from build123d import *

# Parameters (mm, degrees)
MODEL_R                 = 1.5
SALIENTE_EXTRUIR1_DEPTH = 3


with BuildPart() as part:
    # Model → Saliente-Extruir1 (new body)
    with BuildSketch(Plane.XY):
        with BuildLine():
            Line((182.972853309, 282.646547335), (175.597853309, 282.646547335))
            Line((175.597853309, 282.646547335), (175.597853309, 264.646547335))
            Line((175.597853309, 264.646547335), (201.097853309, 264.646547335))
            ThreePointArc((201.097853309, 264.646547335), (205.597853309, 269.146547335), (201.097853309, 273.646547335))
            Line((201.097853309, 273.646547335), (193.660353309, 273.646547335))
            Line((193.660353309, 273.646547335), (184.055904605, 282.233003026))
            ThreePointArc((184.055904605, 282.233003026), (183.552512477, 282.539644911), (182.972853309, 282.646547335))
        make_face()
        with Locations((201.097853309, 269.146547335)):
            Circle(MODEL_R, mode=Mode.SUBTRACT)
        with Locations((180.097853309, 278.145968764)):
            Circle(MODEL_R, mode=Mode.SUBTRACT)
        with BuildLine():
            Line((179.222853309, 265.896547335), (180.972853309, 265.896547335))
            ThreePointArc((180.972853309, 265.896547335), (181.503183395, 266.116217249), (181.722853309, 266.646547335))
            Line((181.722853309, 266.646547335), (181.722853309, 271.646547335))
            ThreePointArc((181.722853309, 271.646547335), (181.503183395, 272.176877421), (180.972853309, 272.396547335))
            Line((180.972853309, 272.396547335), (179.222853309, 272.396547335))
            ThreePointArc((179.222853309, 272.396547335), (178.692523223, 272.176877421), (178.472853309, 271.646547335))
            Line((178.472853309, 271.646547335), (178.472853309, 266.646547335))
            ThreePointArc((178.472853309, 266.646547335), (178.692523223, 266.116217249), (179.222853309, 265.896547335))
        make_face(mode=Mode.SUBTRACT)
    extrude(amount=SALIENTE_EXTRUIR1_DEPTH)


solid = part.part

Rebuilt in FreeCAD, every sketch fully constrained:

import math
import FreeCAD as App
import Part
import Sketcher

V = App.Vector
Q = App.Units.Quantity

doc = App.newDocument("Part")
body = doc.addObject("PartDesign::Body", "Body")

# Sketch on XY plane
sketch1 = body.newObject("Sketcher::SketchObject", "Sketch")
sketch1.AttachmentSupport = (doc.getObject("XY_Plane"), [""])
sketch1.MapMode = "FlatFace"
sketch1.addGeometry([
    Part.LineSegment(V(182.972853, 282.646547, 0), V(175.597853, 282.646547, 0)),  # 0
    Part.LineSegment(V(175.597853, 282.646547, 0), V(175.597853, 264.646547, 0)),  # 1
    Part.LineSegment(V(175.597853, 264.646547, 0), V(201.097853, 264.646547, 0)),  # 2
    Part.ArcOfCircle(Part.Circle(V(201.097853, 269.146547, 0), V(0, 0, 1), 4.5), math.radians(-90), math.radians(90)),  # 3
    Part.LineSegment(V(201.097853, 273.646547, 0), V(193.660353, 273.646547, 0)),  # 4
    Part.LineSegment(V(193.660353, 273.646547, 0), V(184.055905, 282.233003, 0)),  # 5
    Part.ArcOfCircle(Part.Circle(V(182.972853, 281.021547, 0), V(0, 0, 1), 1.625), math.radians(48.203025), math.radians(90)),  # 6
    Part.LineSegment(V(180.972853, 265.896547, 0), V(179.222853, 265.896547, 0)),  # 7
    Part.ArcOfCircle(Part.Circle(V(179.222853, 266.646547, 0), V(0, 0, 1), 0.75), math.radians(180), math.radians(270)),  # 8
    Part.LineSegment(V(178.472853, 266.646547, 0), V(178.472853, 271.646547, 0)),  # 9
    Part.ArcOfCircle(Part.Circle(V(179.222853, 271.646547, 0), V(0, 0, 1), 0.75), math.radians(90), math.radians(180)),  # 10
    Part.LineSegment(V(179.222853, 272.396547, 0), V(180.972853, 272.396547, 0)),  # 11
    Part.ArcOfCircle(Part.Circle(V(180.972853, 271.646547, 0), V(0, 0, 1), 0.75), math.radians(0), math.radians(90)),  # 12
    Part.LineSegment(V(181.722853, 271.646547, 0), V(181.722853, 266.646547, 0)),  # 13
    Part.ArcOfCircle(Part.Circle(V(180.972853, 266.646547, 0), V(0, 0, 1), 0.75), math.radians(-90), math.radians(0)),  # 14
    Part.Circle(V(201.097853, 269.146547, 0), V(0, 0, 1), 1.5),  # 15
    Part.Circle(V(180.097853, 278.145969, 0), V(0, 0, 1), 1.5),  # 16
], False)
sketch1.addConstraint([
    Sketcher.Constraint("Coincident", 0, 2, 1, 1),
    Sketcher.Constraint("Coincident", 1, 2, 2, 1),
    Sketcher.Constraint("Tangent", 2, 2, 3, 1),
    Sketcher.Constraint("Tangent", 3, 2, 4, 1),
    Sketcher.Constraint("Coincident", 4, 2, 5, 1),
    Sketcher.Constraint("Tangent", 5, 2, 6, 1),
    Sketcher.Constraint("Tangent", 6, 2, 0, 1),
    Sketcher.Constraint("Tangent", 7, 2, 8, 2),
    Sketcher.Constraint("Tangent", 8, 1, 9, 1),
    Sketcher.Constraint("Tangent", 9, 2, 10, 2),
    Sketcher.Constraint("Tangent", 10, 1, 11, 1),
    Sketcher.Constraint("Tangent", 11, 2, 12, 2),
    Sketcher.Constraint("Tangent", 12, 1, 13, 1),
    Sketcher.Constraint("Tangent", 13, 2, 14, 2),
    Sketcher.Constraint("Tangent", 14, 1, 7, 1),
    Sketcher.Constraint("Horizontal", 0),
    Sketcher.Constraint("Vertical", 1),
    Sketcher.Constraint("Horizontal", 2),
    Sketcher.Constraint("Horizontal", 4),
    Sketcher.Constraint("Horizontal", 7),
    Sketcher.Constraint("Vertical", 9),
    Sketcher.Constraint("Horizontal", 11),
    Sketcher.Constraint("Vertical", 13),
    Sketcher.Constraint("Coincident", 15, 3, 3, 3),
    Sketcher.Constraint("Equal", 8, 10),
    Sketcher.Constraint("Equal", 10, 12),
    Sketcher.Constraint("Equal", 12, 14),
    Sketcher.Constraint("Equal", 15, 16),
    Sketcher.Constraint("Diameter", 15, Q("3 mm")),
    Sketcher.Constraint("Radius", 3, Q("4.5 mm")),
    Sketcher.Constraint("DistanceY", 1, 2, 1, 1, Q("18 mm")),
    Sketcher.Constraint("DistanceY", 9, 1, 9, 2, Q("5 mm")),
    Sketcher.Constraint("Radius", 8, Q("0.75 mm")),
    Sketcher.Constraint("DistanceX", 2, 1, 2, 2, Q("25.5 mm")),
    Sketcher.Constraint("Radius", 6, Q("1.625 mm")),
    Sketcher.Constraint("DistanceX", 12, 3, 6, 3, Q("2 mm")),
    Sketcher.Constraint("DistanceY", 10, 3, 0, 2, Q("11 mm")),
    Sketcher.Constraint("DistanceX", 7, 2, 7, 1, Q("1.75 mm")),
    Sketcher.Constraint("DistanceX", 0, 2, 16, 3, Q("4.5 mm")),
    Sketcher.Constraint("DistanceX", 0, 2, 0, 1, Q("7.375 mm")),
    Sketcher.Constraint("DistanceX", 4, 2, 4, 1, Q("7.4375 mm")),
    Sketcher.Constraint("DistanceY", -1, 1, 16, 3, Q("278.145969 mm")),
    Sketcher.Constraint("DistanceY", 16, 3, 6, 3, Q("2.875579 mm")),
    Sketcher.Constraint("DistanceX", -1, 1, 3, 3, Q("201.097853 mm")),
])
pad1 = body.newObject("PartDesign::Pad", "Pad")
pad1.Profile = sketch1
pad1.Length = 3

doc.recompute()
